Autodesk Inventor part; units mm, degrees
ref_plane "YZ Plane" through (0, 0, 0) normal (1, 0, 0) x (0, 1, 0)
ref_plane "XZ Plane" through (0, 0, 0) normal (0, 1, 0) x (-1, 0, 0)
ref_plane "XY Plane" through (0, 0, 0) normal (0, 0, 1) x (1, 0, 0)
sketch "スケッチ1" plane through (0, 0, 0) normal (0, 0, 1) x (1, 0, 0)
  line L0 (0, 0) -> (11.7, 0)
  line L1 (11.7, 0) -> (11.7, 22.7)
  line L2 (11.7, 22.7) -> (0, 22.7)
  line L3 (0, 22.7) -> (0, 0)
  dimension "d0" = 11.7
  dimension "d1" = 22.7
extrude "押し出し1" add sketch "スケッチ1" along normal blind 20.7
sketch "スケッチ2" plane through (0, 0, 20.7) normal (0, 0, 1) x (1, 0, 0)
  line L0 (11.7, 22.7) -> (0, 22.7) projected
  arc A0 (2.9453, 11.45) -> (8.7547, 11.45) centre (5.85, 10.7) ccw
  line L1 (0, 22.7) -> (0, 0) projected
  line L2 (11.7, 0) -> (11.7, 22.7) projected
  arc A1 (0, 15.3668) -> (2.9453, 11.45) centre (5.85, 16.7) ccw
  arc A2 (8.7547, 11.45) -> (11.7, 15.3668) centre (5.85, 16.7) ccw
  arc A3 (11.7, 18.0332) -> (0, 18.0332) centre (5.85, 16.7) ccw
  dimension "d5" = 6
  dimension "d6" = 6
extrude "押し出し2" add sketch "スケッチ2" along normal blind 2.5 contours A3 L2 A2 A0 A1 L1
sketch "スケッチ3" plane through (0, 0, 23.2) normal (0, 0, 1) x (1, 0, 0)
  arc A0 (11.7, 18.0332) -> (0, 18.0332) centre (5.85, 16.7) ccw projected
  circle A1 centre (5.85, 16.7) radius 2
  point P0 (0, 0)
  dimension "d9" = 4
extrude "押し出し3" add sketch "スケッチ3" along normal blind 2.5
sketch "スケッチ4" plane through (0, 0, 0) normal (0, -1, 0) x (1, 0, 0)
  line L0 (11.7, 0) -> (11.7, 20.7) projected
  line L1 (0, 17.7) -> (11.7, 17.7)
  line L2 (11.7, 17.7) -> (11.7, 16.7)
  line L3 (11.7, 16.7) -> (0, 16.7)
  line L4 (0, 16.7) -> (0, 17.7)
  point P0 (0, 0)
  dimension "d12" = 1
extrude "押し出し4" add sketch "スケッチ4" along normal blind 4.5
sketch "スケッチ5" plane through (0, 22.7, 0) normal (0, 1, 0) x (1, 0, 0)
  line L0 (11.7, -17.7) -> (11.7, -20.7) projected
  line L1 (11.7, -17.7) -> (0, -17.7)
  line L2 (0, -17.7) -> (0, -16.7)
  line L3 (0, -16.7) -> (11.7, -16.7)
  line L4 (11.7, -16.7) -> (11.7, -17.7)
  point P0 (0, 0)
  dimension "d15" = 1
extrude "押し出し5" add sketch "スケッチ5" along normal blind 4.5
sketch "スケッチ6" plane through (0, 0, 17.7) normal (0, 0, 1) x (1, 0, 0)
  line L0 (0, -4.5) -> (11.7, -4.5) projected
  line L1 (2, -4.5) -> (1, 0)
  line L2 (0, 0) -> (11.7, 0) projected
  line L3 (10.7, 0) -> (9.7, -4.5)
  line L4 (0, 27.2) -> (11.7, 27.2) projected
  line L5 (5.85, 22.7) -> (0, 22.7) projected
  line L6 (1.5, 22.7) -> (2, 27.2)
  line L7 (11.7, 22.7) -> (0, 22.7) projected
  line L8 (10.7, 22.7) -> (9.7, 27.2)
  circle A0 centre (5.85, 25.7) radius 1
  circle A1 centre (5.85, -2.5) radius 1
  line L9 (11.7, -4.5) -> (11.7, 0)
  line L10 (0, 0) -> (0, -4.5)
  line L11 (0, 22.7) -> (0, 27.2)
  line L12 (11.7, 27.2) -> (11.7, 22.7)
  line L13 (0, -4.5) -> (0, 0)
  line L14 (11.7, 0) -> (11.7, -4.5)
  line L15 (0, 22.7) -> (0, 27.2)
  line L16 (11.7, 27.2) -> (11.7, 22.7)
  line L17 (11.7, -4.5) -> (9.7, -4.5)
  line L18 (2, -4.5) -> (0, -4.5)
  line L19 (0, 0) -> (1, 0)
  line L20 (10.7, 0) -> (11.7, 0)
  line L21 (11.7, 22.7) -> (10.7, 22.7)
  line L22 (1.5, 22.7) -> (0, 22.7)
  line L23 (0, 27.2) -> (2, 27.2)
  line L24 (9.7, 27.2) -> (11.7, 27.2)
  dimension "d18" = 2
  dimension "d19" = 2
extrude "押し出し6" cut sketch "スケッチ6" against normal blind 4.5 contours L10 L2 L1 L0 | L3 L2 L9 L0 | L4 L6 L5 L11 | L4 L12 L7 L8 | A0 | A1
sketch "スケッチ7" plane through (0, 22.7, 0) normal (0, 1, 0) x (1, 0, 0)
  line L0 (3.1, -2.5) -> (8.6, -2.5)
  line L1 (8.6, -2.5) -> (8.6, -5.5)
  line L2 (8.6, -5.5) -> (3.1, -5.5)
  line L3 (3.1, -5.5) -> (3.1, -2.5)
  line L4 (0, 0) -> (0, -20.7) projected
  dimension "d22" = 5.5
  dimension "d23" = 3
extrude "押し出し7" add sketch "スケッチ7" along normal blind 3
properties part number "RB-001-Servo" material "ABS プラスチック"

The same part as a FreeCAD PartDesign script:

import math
import FreeCAD as App
import Part
import Sketcher

V = App.Vector
Q = App.Units.Quantity


def add_polygon(sketch, points):
    """Adds a closed chain of lines whose ends are joined by coincident constraints."""
    first, n = sketch.GeometryCount, len(points)
    for a, b in zip(points, points[1:] + points[:1]):
        sketch.addGeometry(Part.LineSegment(App.Vector(*a, 0), App.Vector(*b, 0)), False)
    for i in range(n):
        sketch.addConstraint(Sketcher.Constraint("Coincident", first + i, 2, first + (i + 1) % n, 1))

doc = App.newDocument("Part")
params = doc.addObject("Spreadsheet::Sheet", "Params")
for row, (alias, value) in enumerate([
    ("sketch1_width", "11.7 mm"),
    ("sketch1_height", "22.7 mm"),
    ("pad1_length", "20.7 mm"),
    ("sketch2_radius", "6 mm"),
    ("sketch2_radius2", "3 mm"),
    ("pad2_length", "2.5 mm"),
    ("sketch3_diameter", "4 mm"),
    ("pad3_length", "2.5 mm"),
    ("sketch4_height", "1 mm"),
    ("sketch4_width", "11.7 mm"),
    ("pad4_length", "4.5 mm"),
    ("sketch5_height", "1 mm"),
    ("sketch5_width", "11.7 mm"),
    ("pad5_length", "4.5 mm"),
    ("sketch6_diameter", "2 mm"),
    ("sketch6_width", "2 mm"),
    ("sketch6_width2", "1 mm"),
    ("sketch6_width3", "1.5 mm"),
    ("sketch6_height", "4.5 mm"),
    ("pocket1_length", "4.5 mm"),
    ("sketch7_height", "3 mm"),
    ("sketch7_width", "5.5 mm"),
    ("pad6_length", "3 mm"),
], start=1):
    params.set(f"A{row}", alias)
    params.set(f"B{row}", "=" + value)
    params.setAlias(f"B{row}", alias)

body = doc.addObject("PartDesign::Body", "Body")

# Sketch on XY plane
sketch1 = doc.addObject("Sketcher::SketchObject", "Sketch")
body.addObject(sketch1)
sketch1.AttachmentSupport = (doc.XY_Plane, [""])
sketch1.MapMode = "FlatFace"
add_polygon(sketch1, [(0, 23), (0, 0), (12, 0), (12, 23)])  # lines 0-3
sketch1.addConstraint([
    Sketcher.Constraint("Vertical", 0),
    Sketcher.Constraint("Horizontal", 1),
    Sketcher.Constraint("Vertical", 2),
    Sketcher.Constraint("Horizontal", 3),
    Sketcher.Constraint("Coincident", 0, 2, -1, 1),
    Sketcher.Constraint("DistanceX", 1, 1, 1, 2, Q("11.7 mm")),
    Sketcher.Constraint("DistanceY", 0, 2, 0, 1, Q("22.7 mm")),
])
sketch1.setExpression("Constraints[9]", "Params.sketch1_width")
sketch1.setExpression("Constraints[10]", "Params.sketch1_height")
pad1 = doc.addObject("PartDesign::Pad", "Pad")
body.addObject(pad1)
pad1.Profile = sketch1
pad1.setExpression("Length", "Params.pad1_length")

# Sketch on XY plane
sketch2 = doc.addObject("Sketcher::SketchObject", "Sketch001")
body.addObject(sketch2)
sketch2.AttachmentSupport = (doc.XY_Plane, [""])
sketch2.MapMode = "FlatFace"
sketch2.AttachmentOffset = App.Placement(V(0, 0, 20.7), App.Rotation())
sketch2.addGeometry([
    Part.ArcOfCircle(Part.Circle(V(5.8, 16.7, 0), V(0, 0, 1), 6), math.radians(13), math.radians(167)),  # 0
    Part.LineSegment(V(0, 18, 0), V(0, 15.4, 0)),  # 1
    Part.ArcOfCircle(Part.Circle(V(5.8, 16.7, 0), V(0, 0, 1), 6), math.radians(-167), math.radians(-119)),  # 2
    Part.ArcOfCircle(Part.Circle(V(5.8, 10.7, 0), V(0, 0, 1), 3), math.radians(166), math.radians(374)),  # 3
    Part.ArcOfCircle(Part.Circle(V(5.8, 16.7, 0), V(0, 0, 1), 6), math.radians(-61), math.radians(-13)),  # 4
    Part.LineSegment(V(11.7, 15.4, 0), V(11.7, 18, 0)),  # 5
], False)
sketch2.addConstraint([
    Sketcher.Constraint("Coincident", 0, 2, 1, 1),
    Sketcher.Constraint("Coincident", 1, 2, 2, 1),
    Sketcher.Constraint("Coincident", 2, 2, 3, 1),
    Sketcher.Constraint("Coincident", 3, 2, 4, 1),
    Sketcher.Constraint("Coincident", 4, 2, 5, 1),
    Sketcher.Constraint("Coincident", 5, 2, 0, 1),
    Sketcher.Constraint("Vertical", 1),
    Sketcher.Constraint("Vertical", 5),
    Sketcher.Constraint("Coincident", 2, 3, 0, 3),
    Sketcher.Constraint("Coincident", 4, 3, 0, 3),
    Sketcher.Constraint("Equal", 0, 2),
    Sketcher.Constraint("Equal", 2, 4),
    Sketcher.Constraint("PointOnObject", 0, 2, -2),
    Sketcher.Constraint("Horizontal", 2, 2, 3, 2),
    Sketcher.Constraint("Horizontal", 1, 2, 4, 2),
    Sketcher.Constraint("Radius", 0, Q("6 mm")),
    Sketcher.Constraint("Radius", 3, Q("3 mm")),
    Sketcher.Constraint("DistanceY", 3, 3, 0, 3, Q("6 mm")),
    Sketcher.Constraint("DistanceY", -1, 1, 0, 3, Q("16.7 mm")),
    Sketcher.Constraint("DistanceX", -1, 1, 4, 2, Q("11.7 mm")),
])
sketch2.setExpression("Constraints[15]", "Params.sketch2_radius")
sketch2.setExpression("Constraints[16]", "Params.sketch2_radius2")
pad2 = doc.addObject("PartDesign::Pad", "Pad001")
body.addObject(pad2)
pad2.Profile = sketch2
pad2.setExpression("Length", "Params.pad2_length")

# Sketch on XY plane
sketch3 = doc.addObject("Sketcher::SketchObject", "Sketch002")
body.addObject(sketch3)
sketch3.AttachmentSupport = (doc.XY_Plane, [""])
sketch3.MapMode = "FlatFace"
sketch3.AttachmentOffset = App.Placement(V(0, 0, 23.2), App.Rotation())
sketch3.addGeometry(Part.Circle(V(5.8, 16.7, 0), V(0, 0, 1), 2), False)
sketch3.addConstraint([
    Sketcher.Constraint("Diameter", 0, Q("4 mm")),
    Sketcher.Constraint("DistanceY", -1, 1, 0, 3, Q("16.7 mm")),
    Sketcher.Constraint("DistanceX", -1, 1, 0, 3, Q("5.85 mm")),
])
sketch3.setExpression("Constraints[0]", "Params.sketch3_diameter")
pad3 = doc.addObject("PartDesign::Pad", "Pad002")
body.addObject(pad3)
pad3.Profile = sketch3
pad3.setExpression("Length", "Params.pad3_length")

# Sketch on XZ plane
sketch4 = doc.addObject("Sketcher::SketchObject", "Sketch003")
body.addObject(sketch4)
sketch4.AttachmentSupport = (doc.XZ_Plane, [""])
sketch4.MapMode = "FlatFace"
add_polygon(sketch4, [(0, 16.7), (11.7, 16.7), (11.7, 17.7), (0, 17.7)])  # lines 0-3
sketch4.addConstraint([
    Sketcher.Constraint("Horizontal", 0),
    Sketcher.Constraint("Vertical", 1),
    Sketcher.Constraint("Horizontal", 2),
    Sketcher.Constraint("Vertical", 3),
    Sketcher.Constraint("PointOnObject", 2, 2, -2),
    Sketcher.Constraint("DistanceY", 1, 1, 1, 2, Q("1 mm")),
    Sketcher.Constraint("DistanceX", 0, 1, 0, 2, Q("11.7 mm")),
    Sketcher.Constraint("DistanceY", -1, 1, 0, 2, Q("16.7 mm")),
])
sketch4.setExpression("Constraints[9]", "Params.sketch4_height")
sketch4.setExpression("Constraints[10]", "Params.sketch4_width")
pad4 = doc.addObject("PartDesign::Pad", "Pad003")
body.addObject(pad4)
pad4.Profile = sketch4
pad4.setExpression("Length", "Params.pad4_length")

# Sketch on XZ plane
sketch5 = doc.addObject("Sketcher::SketchObject", "Sketch004")
body.addObject(sketch5)
sketch5.AttachmentSupport = (doc.XZ_Plane, [""])
sketch5.MapMode = "FlatFace"
sketch5.AttachmentOffset = App.Placement(V(0, 0, -22.7), App.Rotation())
add_polygon(sketch5, [(0, 17.7), (11.7, 17.7), (11.7, 16.7), (0, 16.7)])  # lines 0-3
sketch5.addConstraint([
    Sketcher.Constraint("Horizontal", 0),
    Sketcher.Constraint("Vertical", 1),
    Sketcher.Constraint("Horizontal", 2),
    Sketcher.Constraint("Vertical", 3),
    Sketcher.Constraint("PointOnObject", 2, 2, -2),
    Sketcher.Constraint("DistanceY", 1, 2, 1, 1, Q("1 mm")),
    Sketcher.Constraint("DistanceX", 0, 1, 0, 2, Q("11.7 mm")),
    Sketcher.Constraint("DistanceY", -1, 1, 0, 2, Q("17.7 mm")),
])
sketch5.setExpression("Constraints[9]", "Params.sketch5_height")
sketch5.setExpression("Constraints[10]", "Params.sketch5_width")
pad5 = doc.addObject("PartDesign::Pad", "Pad004")
body.addObject(pad5)
pad5.Profile = sketch5
pad5.setExpression("Length", "Params.pad5_length")
pad5.Reversed = True

# Sketch on XY plane
sketch6 = doc.addObject("Sketcher::SketchObject", "Sketch005")
body.addObject(sketch6)
sketch6.AttachmentSupport = (doc.XY_Plane, [""])
sketch6.MapMode = "FlatFace"
sketch6.AttachmentOffset = App.Placement(V(0, 0, 17.7), App.Rotation())
add_polygon(sketch6, [(0, 0), (0, -4.5), (2, -4.5), (1, 0)])  # lines 0-3
add_polygon(sketch6, [(10.7, 0), (9.7, -4.5), (11.7, -4.5), (11.7, 0)])  # lines 4-7
add_polygon(sketch6, [(2, 27.2), (0, 27.2), (0, 22.7), (1.5, 22.7)])  # lines 8-11
add_polygon(sketch6, [(11.7, 27.2), (9.7, 27.2), (10.7, 22.7), (11.7, 22.7)])  # lines 12-15
sketch6.addGeometry(Part.Circle(V(5.8, 25.7, 0), V(0, 0, 1), 1), False)  # 16
sketch6.addGeometry(Part.Circle(V(5.8, -2.5, 0), V(0, 0, 1), 1), False)  # 17
sketch6.addConstraint([
    Sketcher.Constraint("Vertical", 0),
    Sketcher.Constraint("Horizontal", 1),
    Sketcher.Constraint("Horizontal", 3),
    Sketcher.Constraint("Horizontal", 5),
    Sketcher.Constraint("Vertical", 6),
    Sketcher.Constraint("Horizontal", 7),
    Sketcher.Constraint("Horizontal", 8),
    Sketcher.Constraint("Vertical", 9),
    Sketcher.Constraint("Horizontal", 10),
    Sketcher.Constraint("Horizontal", 12),
    Sketcher.Constraint("Horizontal", 14),
    Sketcher.Constraint("Vertical", 15),
    Sketcher.Constraint("Coincident", 3, 2, -1, 1),
    Sketcher.Constraint("Equal", 16, 17),
    Sketcher.Constraint("PointOnObject", 6, 2, -1),
    Sketcher.Constraint("PointOnObject", 8, 2, -2),
    Sketcher.Constraint("Parallel", 2, 13),
    Sketcher.Constraint("Horizontal", 1, 2, 4, 2),
    Sketcher.Constraint("Horizontal", 11, 2, 12, 2),
    Sketcher.Constraint("Horizontal", 10, 2, 13, 2),
    Sketcher.Constraint("Vertical", 16, 3, 17, 3),
    Sketcher.Constraint("Vertical", 1, 2, 11, 2),
    Sketcher.Constraint("Vertical", 4, 2, 12, 2),
    Sketcher.Constraint("Vertical", 7, 2, 13, 2),
    Sketcher.Constraint("Vertical", 6, 2, 14, 2),
    Sketcher.Constraint("Equal", 1, 5),
    Sketcher.Constraint("Equal", 3, 7),
    Sketcher.Constraint("Diameter", 16, Q("2 mm")),
    Sketcher.Constraint("DistanceX", 1, 1, 1, 2, Q("2 mm")),
    Sketcher.Constraint("DistanceY", 0, 2, 17, 3, Q("2 mm")),
    Sketcher.Constraint("DistanceX", 3, 2, 3, 1, Q("1 mm")),
    Sketcher.Constraint("DistanceX", 10, 1, 10, 2, Q("1.5 mm")),
    Sketcher.Constraint("DistanceY", 0, 2, 0, 1, Q("4.5 mm")),
    Sketcher.Constraint("DistanceY", 9, 2, 16, 3, Q("3 mm")),
    Sketcher.Constraint("DistanceY", -1, 1, 16, 3, Q("25.7 mm")),
    Sketcher.Constraint("DistanceX", -1, 1, 4, 2, Q("9.7 mm")),
    Sketcher.Constraint("DistanceX", -1, 1, 16, 3, Q("5.85 mm")),
])
sketch6.setExpression("Constraints[43]", "Params.sketch6_diameter")
sketch6.setExpression("Constraints[44]", "Params.sketch6_width")
sketch6.setExpression("Constraints[46]", "Params.sketch6_width2")
sketch6.setExpression("Constraints[47]", "Params.sketch6_width3")
sketch6.setExpression("Constraints[48]", "Params.sketch6_height")
pocket1 = doc.addObject("PartDesign::Pocket", "Pocket")
body.addObject(pocket1)
pocket1.Profile = sketch6
pocket1.setExpression("Length", "Params.pocket1_length")

# Sketch on XZ plane
sketch7 = doc.addObject("Sketcher::SketchObject", "Sketch006")
body.addObject(sketch7)
sketch7.AttachmentSupport = (doc.XZ_Plane, [""])
sketch7.MapMode = "FlatFace"
sketch7.AttachmentOffset = App.Placement(V(0, 0, -22.7), App.Rotation())
add_polygon(sketch7, [(8.6, 2.5), (3.1, 2.5), (3.1, 5.5), (8.6, 5.5)])  # lines 0-3
sketch7.addConstraint([
    Sketcher.Constraint("Horizontal", 0),
    Sketcher.Constraint("Vertical", 1),
    Sketcher.Constraint("Horizontal", 2),
    Sketcher.Constraint("Vertical", 3),
    Sketcher.Constraint("DistanceY", 1, 1, 1, 2, Q("3 mm")),
    Sketcher.Constraint("DistanceX", 0, 2, 0, 1, Q("5.5 mm")),
    Sketcher.Constraint("DistanceY", -1, 1, 1, 2, Q("5.5 mm")),
    Sketcher.Constraint("DistanceX", -1, 1, 0, 2, Q("3.1 mm")),
])
sketch7.setExpression("Constraints[8]", "Params.sketch7_height")
sketch7.setExpression("Constraints[9]", "Params.sketch7_width")
pad6 = doc.addObject("PartDesign::Pad", "Pad005")
body.addObject(pad6)
pad6.Profile = sketch7
pad6.setExpression("Length", "Params.pad6_length")
pad6.Reversed = True

doc.recompute()
